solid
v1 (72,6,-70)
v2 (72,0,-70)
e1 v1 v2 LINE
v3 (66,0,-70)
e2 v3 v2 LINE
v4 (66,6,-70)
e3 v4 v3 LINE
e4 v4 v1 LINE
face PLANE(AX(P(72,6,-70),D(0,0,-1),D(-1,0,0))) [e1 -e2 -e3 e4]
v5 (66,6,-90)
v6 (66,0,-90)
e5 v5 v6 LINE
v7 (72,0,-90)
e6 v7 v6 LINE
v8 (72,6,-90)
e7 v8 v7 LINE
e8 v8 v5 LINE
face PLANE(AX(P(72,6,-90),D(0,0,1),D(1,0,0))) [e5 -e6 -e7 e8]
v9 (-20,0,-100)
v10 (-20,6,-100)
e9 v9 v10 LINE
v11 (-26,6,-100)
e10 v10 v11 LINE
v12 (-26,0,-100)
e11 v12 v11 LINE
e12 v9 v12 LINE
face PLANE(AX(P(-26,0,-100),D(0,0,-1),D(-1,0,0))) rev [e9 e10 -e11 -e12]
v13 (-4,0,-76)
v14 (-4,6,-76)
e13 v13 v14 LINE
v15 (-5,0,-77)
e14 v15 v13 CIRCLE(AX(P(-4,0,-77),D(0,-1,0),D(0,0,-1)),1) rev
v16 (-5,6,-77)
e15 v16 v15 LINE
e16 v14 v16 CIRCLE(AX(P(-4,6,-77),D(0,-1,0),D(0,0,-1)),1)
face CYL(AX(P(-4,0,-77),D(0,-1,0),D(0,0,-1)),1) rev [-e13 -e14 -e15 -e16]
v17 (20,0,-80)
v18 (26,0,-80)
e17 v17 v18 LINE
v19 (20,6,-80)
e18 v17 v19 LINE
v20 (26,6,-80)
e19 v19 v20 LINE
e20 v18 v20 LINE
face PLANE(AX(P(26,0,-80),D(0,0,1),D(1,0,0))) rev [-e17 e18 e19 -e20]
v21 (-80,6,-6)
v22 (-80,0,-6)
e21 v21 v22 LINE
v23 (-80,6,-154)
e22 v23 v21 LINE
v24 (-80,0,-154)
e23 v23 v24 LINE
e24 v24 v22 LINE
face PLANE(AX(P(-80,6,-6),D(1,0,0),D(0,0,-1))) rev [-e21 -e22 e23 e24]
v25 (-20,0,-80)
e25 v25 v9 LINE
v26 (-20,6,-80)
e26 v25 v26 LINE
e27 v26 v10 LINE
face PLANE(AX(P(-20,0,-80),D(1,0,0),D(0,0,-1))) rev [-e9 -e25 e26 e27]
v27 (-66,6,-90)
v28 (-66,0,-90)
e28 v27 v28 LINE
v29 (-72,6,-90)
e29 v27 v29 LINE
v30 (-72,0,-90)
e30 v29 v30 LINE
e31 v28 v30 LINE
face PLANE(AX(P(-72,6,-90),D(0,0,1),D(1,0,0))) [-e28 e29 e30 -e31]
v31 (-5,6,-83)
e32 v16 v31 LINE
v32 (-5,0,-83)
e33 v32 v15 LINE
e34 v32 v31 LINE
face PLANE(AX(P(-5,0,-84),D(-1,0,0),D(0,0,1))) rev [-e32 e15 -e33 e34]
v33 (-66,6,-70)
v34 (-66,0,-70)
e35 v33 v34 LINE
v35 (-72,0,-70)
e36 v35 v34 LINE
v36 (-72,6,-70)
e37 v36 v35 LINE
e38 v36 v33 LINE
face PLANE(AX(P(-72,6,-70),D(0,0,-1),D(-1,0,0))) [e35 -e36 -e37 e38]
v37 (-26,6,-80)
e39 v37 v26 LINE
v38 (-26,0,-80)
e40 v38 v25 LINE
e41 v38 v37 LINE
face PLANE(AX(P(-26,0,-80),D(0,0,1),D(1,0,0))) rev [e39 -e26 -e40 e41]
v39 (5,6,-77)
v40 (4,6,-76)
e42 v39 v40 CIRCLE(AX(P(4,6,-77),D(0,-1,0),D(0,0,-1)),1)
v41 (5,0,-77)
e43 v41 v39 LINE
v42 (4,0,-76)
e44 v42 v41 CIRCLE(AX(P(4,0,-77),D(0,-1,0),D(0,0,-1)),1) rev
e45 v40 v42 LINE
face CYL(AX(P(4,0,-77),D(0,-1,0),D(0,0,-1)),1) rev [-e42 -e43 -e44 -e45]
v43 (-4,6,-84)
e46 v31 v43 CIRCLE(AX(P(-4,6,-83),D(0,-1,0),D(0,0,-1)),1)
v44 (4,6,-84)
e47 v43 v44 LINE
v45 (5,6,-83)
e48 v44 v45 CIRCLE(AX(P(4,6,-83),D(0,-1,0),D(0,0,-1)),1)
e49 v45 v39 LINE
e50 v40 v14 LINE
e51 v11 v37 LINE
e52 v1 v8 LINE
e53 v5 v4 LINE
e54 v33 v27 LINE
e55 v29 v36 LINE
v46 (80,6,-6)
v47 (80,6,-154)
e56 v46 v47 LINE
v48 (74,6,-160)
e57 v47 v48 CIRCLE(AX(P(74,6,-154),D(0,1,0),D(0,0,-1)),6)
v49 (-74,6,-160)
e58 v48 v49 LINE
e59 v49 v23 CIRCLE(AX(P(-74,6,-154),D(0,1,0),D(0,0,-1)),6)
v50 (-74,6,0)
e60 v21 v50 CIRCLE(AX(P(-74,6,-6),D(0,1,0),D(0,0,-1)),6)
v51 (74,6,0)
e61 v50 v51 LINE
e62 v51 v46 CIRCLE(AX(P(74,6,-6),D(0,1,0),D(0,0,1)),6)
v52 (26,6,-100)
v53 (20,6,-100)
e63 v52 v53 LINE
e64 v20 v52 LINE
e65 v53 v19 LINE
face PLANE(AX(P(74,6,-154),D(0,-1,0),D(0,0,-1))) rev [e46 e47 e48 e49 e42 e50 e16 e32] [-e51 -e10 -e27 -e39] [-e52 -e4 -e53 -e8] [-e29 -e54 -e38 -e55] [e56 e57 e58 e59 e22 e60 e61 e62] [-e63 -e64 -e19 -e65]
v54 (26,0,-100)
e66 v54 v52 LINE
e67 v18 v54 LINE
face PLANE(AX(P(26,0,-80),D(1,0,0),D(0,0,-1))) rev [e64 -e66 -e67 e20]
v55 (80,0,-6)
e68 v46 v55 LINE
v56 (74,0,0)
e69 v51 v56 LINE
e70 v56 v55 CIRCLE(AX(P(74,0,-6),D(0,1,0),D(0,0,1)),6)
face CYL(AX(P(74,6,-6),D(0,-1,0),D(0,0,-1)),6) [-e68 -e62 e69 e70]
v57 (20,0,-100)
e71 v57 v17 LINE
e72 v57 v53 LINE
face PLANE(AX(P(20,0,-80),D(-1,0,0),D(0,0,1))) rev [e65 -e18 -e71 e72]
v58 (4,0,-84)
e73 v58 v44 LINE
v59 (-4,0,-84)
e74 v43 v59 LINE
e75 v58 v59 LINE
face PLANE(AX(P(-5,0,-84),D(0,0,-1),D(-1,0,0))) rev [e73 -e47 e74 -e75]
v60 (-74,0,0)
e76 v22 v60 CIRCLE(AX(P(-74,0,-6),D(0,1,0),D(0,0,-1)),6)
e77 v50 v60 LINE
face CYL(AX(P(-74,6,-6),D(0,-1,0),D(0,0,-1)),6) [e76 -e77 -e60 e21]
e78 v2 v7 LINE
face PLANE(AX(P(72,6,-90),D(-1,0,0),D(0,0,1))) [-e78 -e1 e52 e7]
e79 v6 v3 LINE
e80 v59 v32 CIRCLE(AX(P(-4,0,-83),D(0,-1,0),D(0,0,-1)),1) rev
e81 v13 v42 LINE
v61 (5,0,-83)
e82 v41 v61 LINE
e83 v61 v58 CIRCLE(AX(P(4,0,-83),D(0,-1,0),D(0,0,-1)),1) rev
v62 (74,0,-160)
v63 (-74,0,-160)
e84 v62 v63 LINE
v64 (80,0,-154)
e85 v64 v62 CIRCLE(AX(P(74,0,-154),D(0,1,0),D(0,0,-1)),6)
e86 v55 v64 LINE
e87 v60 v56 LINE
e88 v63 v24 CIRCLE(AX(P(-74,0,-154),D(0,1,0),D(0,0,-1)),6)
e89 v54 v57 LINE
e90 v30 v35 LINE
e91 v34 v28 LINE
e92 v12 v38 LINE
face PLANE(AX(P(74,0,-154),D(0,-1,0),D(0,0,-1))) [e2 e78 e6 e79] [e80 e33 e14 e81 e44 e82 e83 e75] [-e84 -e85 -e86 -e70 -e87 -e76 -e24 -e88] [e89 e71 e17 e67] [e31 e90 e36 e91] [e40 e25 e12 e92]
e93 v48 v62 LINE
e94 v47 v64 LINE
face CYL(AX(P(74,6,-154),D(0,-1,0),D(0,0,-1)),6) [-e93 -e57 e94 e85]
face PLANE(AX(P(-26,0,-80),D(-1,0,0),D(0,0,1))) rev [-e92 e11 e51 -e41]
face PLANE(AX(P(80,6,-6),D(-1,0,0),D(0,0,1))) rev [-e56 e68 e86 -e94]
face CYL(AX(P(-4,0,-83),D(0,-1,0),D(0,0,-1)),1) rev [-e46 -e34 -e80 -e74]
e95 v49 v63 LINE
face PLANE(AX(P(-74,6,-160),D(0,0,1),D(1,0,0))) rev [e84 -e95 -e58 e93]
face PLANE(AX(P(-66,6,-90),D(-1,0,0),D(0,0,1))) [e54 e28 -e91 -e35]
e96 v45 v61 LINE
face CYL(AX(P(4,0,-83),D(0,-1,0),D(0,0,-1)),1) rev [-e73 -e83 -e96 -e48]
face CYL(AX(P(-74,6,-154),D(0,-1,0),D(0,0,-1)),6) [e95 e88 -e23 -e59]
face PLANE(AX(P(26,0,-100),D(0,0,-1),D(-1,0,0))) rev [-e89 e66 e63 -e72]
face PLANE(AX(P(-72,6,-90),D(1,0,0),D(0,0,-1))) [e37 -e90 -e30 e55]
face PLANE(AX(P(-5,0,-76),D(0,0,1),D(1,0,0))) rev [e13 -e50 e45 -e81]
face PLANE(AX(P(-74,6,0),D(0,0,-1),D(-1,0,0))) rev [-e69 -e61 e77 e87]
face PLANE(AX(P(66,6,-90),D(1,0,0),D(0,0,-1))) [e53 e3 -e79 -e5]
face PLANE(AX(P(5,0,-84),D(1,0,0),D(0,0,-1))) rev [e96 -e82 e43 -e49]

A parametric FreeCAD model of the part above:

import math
import FreeCAD as App
import Part
import Sketcher

V = App.Vector


def edges_at(feature, points):
    """Names of the edges that pass closest to the given points."""
    edges = feature.Shape.Edges
    near = lambda p: min(range(len(edges)), key=lambda i: edges[i].distToShape(Part.Vertex(*p))[0])
    return sorted({f"Edge{near(p) + 1}" for p in points})

doc = App.newDocument("Part")
body = doc.addObject("PartDesign::Body", "Body")

# Sketch on XZ plane
sketch1 = body.newObject("Sketcher::SketchObject", "Sketch")
sketch1.AttachmentSupport = (doc.getObject("XZ_Plane"), [""])
sketch1.MapMode = "FlatFace"
sketch1.addGeometry(Part.LineSegment(V(-74, 0, 0), V(74, 0, 0)), False)
sketch1.addGeometry(Part.ArcOfCircle(Part.Circle(V(74, -6, 0), V(0, 0, 1), 6), math.radians(0), math.radians(90)), False)
sketch1.addGeometry(Part.LineSegment(V(80, -6, 0), V(80, -154, 0)), False)
sketch1.addGeometry(Part.ArcOfCircle(Part.Circle(V(74, -154, 0), V(0, 0, 1), 6), math.radians(-90), math.radians(0)), False)
sketch1.addGeometry(Part.LineSegment(V(74, -160, 0), V(-74, -160, 0)), False)
sketch1.addGeometry(Part.ArcOfCircle(Part.Circle(V(-74, -154, 0), V(0, 0, 1), 6), math.radians(180), math.radians(270)), False)
sketch1.addGeometry(Part.LineSegment(V(-80, -154, 0), V(-80, -6, 0)), False)
sketch1.addGeometry(Part.ArcOfCircle(Part.Circle(V(-74, -6, 0), V(0, 0, 1), 6), math.radians(90), math.radians(180)), False)
sketch1.addGeometry(Part.LineSegment(V(-66, -70, 0), V(-72, -70, 0)), False)
sketch1.addGeometry(Part.LineSegment(V(-72, -70, 0), V(-72, -90, 0)), False)
sketch1.addGeometry(Part.LineSegment(V(-72, -90, 0), V(-66, -90, 0)), False)
sketch1.addGeometry(Part.LineSegment(V(-66, -90, 0), V(-66, -70, 0)), False)
sketch1.addGeometry(Part.LineSegment(V(72, -70, 0), V(66, -70, 0)), False)
sketch1.addGeometry(Part.LineSegment(V(66, -70, 0), V(66, -90, 0)), False)
sketch1.addGeometry(Part.LineSegment(V(66, -90, 0), V(72, -90, 0)), False)
sketch1.addGeometry(Part.LineSegment(V(72, -90, 0), V(72, -70, 0)), False)
sketch1.addConstraint(Sketcher.Constraint("Tangent", 0, 2, 1, 2))
sketch1.addConstraint(Sketcher.Constraint("Tangent", 1, 1, 2, 1))
sketch1.addConstraint(Sketcher.Constraint("Tangent", 2, 2, 3, 2))
sketch1.addConstraint(Sketcher.Constraint("Tangent", 3, 1, 4, 1))
sketch1.addConstraint(Sketcher.Constraint("Tangent", 4, 2, 5, 2))
sketch1.addConstraint(Sketcher.Constraint("Tangent", 5, 1, 6, 1))
sketch1.addConstraint(Sketcher.Constraint("Tangent", 6, 2, 7, 2))
sketch1.addConstraint(Sketcher.Constraint("Tangent", 7, 1, 0, 1))
sketch1.addConstraint(Sketcher.Constraint("Coincident", 8, 2, 9, 1))
sketch1.addConstraint(Sketcher.Constraint("Coincident", 9, 2, 10, 1))
sketch1.addConstraint(Sketcher.Constraint("Coincident", 10, 2, 11, 1))
sketch1.addConstraint(Sketcher.Constraint("Coincident", 11, 2, 8, 1))
sketch1.addConstraint(Sketcher.Constraint("Coincident", 12, 2, 13, 1))
sketch1.addConstraint(Sketcher.Constraint("Coincident", 13, 2, 14, 1))
sketch1.addConstraint(Sketcher.Constraint("Coincident", 14, 2, 15, 1))
sketch1.addConstraint(Sketcher.Constraint("Coincident", 15, 2, 12, 1))
sketch1.addConstraint(Sketcher.Constraint("Horizontal", 0))
sketch1.addConstraint(Sketcher.Constraint("Vertical", 2))
sketch1.addConstraint(Sketcher.Constraint("Horizontal", 4))
sketch1.addConstraint(Sketcher.Constraint("Vertical", 6))
sketch1.addConstraint(Sketcher.Constraint("Horizontal", 8))
sketch1.addConstraint(Sketcher.Constraint("Vertical", 9))
sketch1.addConstraint(Sketcher.Constraint("Horizontal", 10))
sketch1.addConstraint(Sketcher.Constraint("Vertical", 11))
sketch1.addConstraint(Sketcher.Constraint("Horizontal", 12))
sketch1.addConstraint(Sketcher.Constraint("Vertical", 13))
sketch1.addConstraint(Sketcher.Constraint("Horizontal", 14))
sketch1.addConstraint(Sketcher.Constraint("Vertical", 15))
sketch1.addConstraint(Sketcher.Constraint("Equal", 1, 3))
sketch1.addConstraint(Sketcher.Constraint("Equal", 3, 5))
sketch1.addConstraint(Sketcher.Constraint("Equal", 5, 7))
sketch1.addConstraint(Sketcher.Constraint("Symmetric", 0, 2, 7, 1, -1, 1))
sketch1.addConstraint(Sketcher.Constraint("Symmetric", 11, 2, 12, 2, -2))
sketch1.addConstraint(Sketcher.Constraint("Symmetric", 9, 2, 14, 2, -2))
sketch1.addConstraint(Sketcher.Constraint("Equal", 4, 2))
sketch1.addConstraint(Sketcher.Constraint("Radius", 1, 6.0))
sketch1.addConstraint(Sketcher.Constraint("DistanceX", 0, 1, 0, 2, 148.0))
sketch1.addConstraint(Sketcher.Constraint("DistanceX", 8, 2, 8, 1, 6.0))
sketch1.addConstraint(Sketcher.Constraint("DistanceY", 9, 2, 9, 1, 20.0))
sketch1.addConstraint(Sketcher.Constraint("DistanceX", 8, 2, -1, 1, 72.0))
sketch1.addConstraint(Sketcher.Constraint("DistanceY", 8, 2, -1, 1, 70.0))
pad1 = body.newObject("PartDesign::Pad", "Pad")
pad1.Profile = sketch1
pad1.Length = 6
pad1.Reversed = True

# Sketch on XZ plane
sketch2 = body.newObject("Sketcher::SketchObject", "Sketch001")
sketch2.AttachmentSupport = (doc.getObject("XZ_Plane"), [""])
sketch2.MapMode = "FlatFace"
sketch2.AttachmentOffset = App.Placement(V(0, 0, -6), App.Rotation())
sketch2.addGeometry(Part.LineSegment(V(20, -100, 0), V(20, -80, 0)), False)
sketch2.addGeometry(Part.LineSegment(V(20, -80, 0), V(26, -80, 0)), False)
sketch2.addGeometry(Part.LineSegment(V(26, -80, 0), V(26, -100, 0)), False)
sketch2.addGeometry(Part.LineSegment(V(26, -100, 0), V(20, -100, 0)), False)
sketch2.addGeometry(Part.LineSegment(V(-26, -100, 0), V(-26, -80, 0)), False)
sketch2.addGeometry(Part.LineSegment(V(-26, -80, 0), V(-20, -80, 0)), False)
sketch2.addGeometry(Part.LineSegment(V(-20, -80, 0), V(-20, -100, 0)), False)
sketch2.addGeometry(Part.LineSegment(V(-20, -100, 0), V(-26, -100, 0)), False)
sketch2.addConstraint(Sketcher.Constraint("Coincident", 0, 2, 1, 1))
sketch2.addConstraint(Sketcher.Constraint("Coincident", 1, 2, 2, 1))
sketch2.addConstraint(Sketcher.Constraint("Coincident", 2, 2, 3, 1))
sketch2.addConstraint(Sketcher.Constraint("Coincident", 3, 2, 0, 1))
sketch2.addConstraint(Sketcher.Constraint("Coincident", 4, 2, 5, 1))
sketch2.addConstraint(Sketcher.Constraint("Coincident", 5, 2, 6, 1))
sketch2.addConstraint(Sketcher.Constraint("Coincident", 6, 2, 7, 1))
sketch2.addConstraint(Sketcher.Constraint("Coincident", 7, 2, 4, 1))
sketch2.addConstraint(Sketcher.Constraint("Vertical", 0))
sketch2.addConstraint(Sketcher.Constraint("Horizontal", 1))
sketch2.addConstraint(Sketcher.Constraint("Vertical", 2))
sketch2.addConstraint(Sketcher.Constraint("Horizontal", 3))
sketch2.addConstraint(Sketcher.Constraint("Vertical", 4))
sketch2.addConstraint(Sketcher.Constraint("Horizontal", 5))
sketch2.addConstraint(Sketcher.Constraint("Vertical", 6))
sketch2.addConstraint(Sketcher.Constraint("Horizontal", 7))
sketch2.addConstraint(Sketcher.Constraint("Symmetric", 1, 2, 4, 2, -2))
sketch2.addConstraint(Sketcher.Constraint("Symmetric", 3, 2, 6, 2, -2))
sketch2.addConstraint(Sketcher.Constraint("DistanceX", 1, 1, 1, 2, 6.0))
sketch2.addConstraint(Sketcher.Constraint("DistanceY", 0, 1, 0, 2, 20.0))
sketch2.addConstraint(Sketcher.Constraint("DistanceX", -1, 1, 0, 2, 20.0))
sketch2.addConstraint(Sketcher.Constraint("DistanceY", 0, 2, -1, 1, 80.0))
pocket1 = body.newObject("PartDesign::Pocket", "Pocket")
pocket1.Profile = sketch2
pocket1.Type = "ThroughAll"
pocket1.Reversed = True

# Sketch on XZ plane
sketch3 = body.newObject("Sketcher::SketchObject", "Sketch002")
sketch3.AttachmentSupport = (doc.getObject("XZ_Plane"), [""])
sketch3.MapMode = "FlatFace"
sketch3.AttachmentOffset = App.Placement(V(0, 0, -6), App.Rotation())
sketch3.addGeometry(Part.LineSegment(V(-5, -84, 0), V(-5, -76, 0)), False)
sketch3.addGeometry(Part.LineSegment(V(-5, -76, 0), V(5, -76, 0)), False)
sketch3.addGeometry(Part.LineSegment(V(5, -76, 0), V(5, -84, 0)), False)
sketch3.addGeometry(Part.LineSegment(V(5, -84, 0), V(-5, -84, 0)), False)
sketch3.addConstraint(Sketcher.Constraint("Coincident", 0, 2, 1, 1))
sketch3.addConstraint(Sketcher.Constraint("Coincident", 1, 2, 2, 1))
sketch3.addConstraint(Sketcher.Constraint("Coincident", 2, 2, 3, 1))
sketch3.addConstraint(Sketcher.Constraint("Coincident", 3, 2, 0, 1))
sketch3.addConstraint(Sketcher.Constraint("Vertical", 0))
sketch3.addConstraint(Sketcher.Constraint("Horizontal", 1))
sketch3.addConstraint(Sketcher.Constraint("Vertical", 2))
sketch3.addConstraint(Sketcher.Constraint("Horizontal", 3))
sketch3.addConstraint(Sketcher.Constraint("DistanceX", 1, 1, 1, 2, 10.0))
sketch3.addConstraint(Sketcher.Constraint("DistanceY", 0, 1, 0, 2, 8.0))
sketch3.addConstraint(Sketcher.Constraint("DistanceX", 0, 2, -1, 1, 5.0))
sketch3.addConstraint(Sketcher.Constraint("DistanceY", 0, 2, -1, 1, 76.0))
pocket2 = body.newObject("PartDesign::Pocket", "Pocket001")
pocket2.Profile = sketch3
pocket2.Type = "ThroughAll"
pocket2.Midplane = True
doc.recompute()

fillet = body.newObject("PartDesign::Fillet", "Fillet")
fillet.Base = (pocket2, edges_at(pocket2, [
    (5, 3, -84),
    (5, 3, -76),
    (-5, 3, -76),
    (-5, 3, -84),
]))
fillet.Radius = 1

doc.recompute()
